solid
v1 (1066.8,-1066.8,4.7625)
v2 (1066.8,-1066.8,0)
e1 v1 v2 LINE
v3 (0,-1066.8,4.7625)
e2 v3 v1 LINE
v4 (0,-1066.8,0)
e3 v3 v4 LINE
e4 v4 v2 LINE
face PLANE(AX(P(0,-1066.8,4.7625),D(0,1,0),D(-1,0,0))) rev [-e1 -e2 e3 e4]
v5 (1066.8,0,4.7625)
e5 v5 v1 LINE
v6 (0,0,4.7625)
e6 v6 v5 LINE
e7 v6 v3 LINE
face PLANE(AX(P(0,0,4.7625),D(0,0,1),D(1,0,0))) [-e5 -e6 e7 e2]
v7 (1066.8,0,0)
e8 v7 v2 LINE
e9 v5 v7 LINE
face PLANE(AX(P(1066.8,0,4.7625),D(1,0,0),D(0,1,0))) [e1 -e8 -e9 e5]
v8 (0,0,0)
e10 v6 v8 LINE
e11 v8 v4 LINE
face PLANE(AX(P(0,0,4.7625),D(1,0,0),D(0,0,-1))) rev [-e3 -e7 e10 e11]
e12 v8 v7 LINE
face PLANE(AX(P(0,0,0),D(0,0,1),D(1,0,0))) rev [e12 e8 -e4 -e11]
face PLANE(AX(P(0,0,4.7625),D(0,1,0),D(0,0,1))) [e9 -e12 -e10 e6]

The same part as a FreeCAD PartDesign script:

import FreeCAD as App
import Part
import Sketcher
Q = App.Units.Quantity


def add_polygon(sketch, points):
    """Adds a closed chain of lines whose ends are joined by coincident constraints."""
    first, n = sketch.GeometryCount, len(points)
    for a, b in zip(points, points[1:] + points[:1]):
        sketch.addGeometry(Part.LineSegment(App.Vector(*a, 0), App.Vector(*b, 0)), False)
    for i in range(n):
        sketch.addConstraint(Sketcher.Constraint("Coincident", first + i, 2, first + (i + 1) % n, 1))

doc = App.newDocument("Part")
body = doc.addObject("PartDesign::Body", "Body")

# Sketch on XY plane
sketch1 = body.newObject("Sketcher::SketchObject", "Sketch")
sketch1.AttachmentSupport = (doc.getObject("XY_Plane"), [""])
sketch1.MapMode = "FlatFace"
add_polygon(sketch1, [(0, 0), (0, -1067), (1067, -1067), (1067, 0)])  # lines 0-3
sketch1.addConstraint([
    Sketcher.Constraint("Vertical", 0),
    Sketcher.Constraint("Horizontal", 1),
    Sketcher.Constraint("Vertical", 2),
    Sketcher.Constraint("Horizontal", 3),
    Sketcher.Constraint("Coincident", 3, 2, -1, 1),
    Sketcher.Constraint("Equal", 3, 0),
    Sketcher.Constraint("DistanceX", 1, 1, 1, 2, Q("42 in")),
])
pad1 = body.newObject("PartDesign::Pad", "Pad")
pad1.Profile = sketch1
pad1.Length = Q("0.1875 in")

doc.recompute()
